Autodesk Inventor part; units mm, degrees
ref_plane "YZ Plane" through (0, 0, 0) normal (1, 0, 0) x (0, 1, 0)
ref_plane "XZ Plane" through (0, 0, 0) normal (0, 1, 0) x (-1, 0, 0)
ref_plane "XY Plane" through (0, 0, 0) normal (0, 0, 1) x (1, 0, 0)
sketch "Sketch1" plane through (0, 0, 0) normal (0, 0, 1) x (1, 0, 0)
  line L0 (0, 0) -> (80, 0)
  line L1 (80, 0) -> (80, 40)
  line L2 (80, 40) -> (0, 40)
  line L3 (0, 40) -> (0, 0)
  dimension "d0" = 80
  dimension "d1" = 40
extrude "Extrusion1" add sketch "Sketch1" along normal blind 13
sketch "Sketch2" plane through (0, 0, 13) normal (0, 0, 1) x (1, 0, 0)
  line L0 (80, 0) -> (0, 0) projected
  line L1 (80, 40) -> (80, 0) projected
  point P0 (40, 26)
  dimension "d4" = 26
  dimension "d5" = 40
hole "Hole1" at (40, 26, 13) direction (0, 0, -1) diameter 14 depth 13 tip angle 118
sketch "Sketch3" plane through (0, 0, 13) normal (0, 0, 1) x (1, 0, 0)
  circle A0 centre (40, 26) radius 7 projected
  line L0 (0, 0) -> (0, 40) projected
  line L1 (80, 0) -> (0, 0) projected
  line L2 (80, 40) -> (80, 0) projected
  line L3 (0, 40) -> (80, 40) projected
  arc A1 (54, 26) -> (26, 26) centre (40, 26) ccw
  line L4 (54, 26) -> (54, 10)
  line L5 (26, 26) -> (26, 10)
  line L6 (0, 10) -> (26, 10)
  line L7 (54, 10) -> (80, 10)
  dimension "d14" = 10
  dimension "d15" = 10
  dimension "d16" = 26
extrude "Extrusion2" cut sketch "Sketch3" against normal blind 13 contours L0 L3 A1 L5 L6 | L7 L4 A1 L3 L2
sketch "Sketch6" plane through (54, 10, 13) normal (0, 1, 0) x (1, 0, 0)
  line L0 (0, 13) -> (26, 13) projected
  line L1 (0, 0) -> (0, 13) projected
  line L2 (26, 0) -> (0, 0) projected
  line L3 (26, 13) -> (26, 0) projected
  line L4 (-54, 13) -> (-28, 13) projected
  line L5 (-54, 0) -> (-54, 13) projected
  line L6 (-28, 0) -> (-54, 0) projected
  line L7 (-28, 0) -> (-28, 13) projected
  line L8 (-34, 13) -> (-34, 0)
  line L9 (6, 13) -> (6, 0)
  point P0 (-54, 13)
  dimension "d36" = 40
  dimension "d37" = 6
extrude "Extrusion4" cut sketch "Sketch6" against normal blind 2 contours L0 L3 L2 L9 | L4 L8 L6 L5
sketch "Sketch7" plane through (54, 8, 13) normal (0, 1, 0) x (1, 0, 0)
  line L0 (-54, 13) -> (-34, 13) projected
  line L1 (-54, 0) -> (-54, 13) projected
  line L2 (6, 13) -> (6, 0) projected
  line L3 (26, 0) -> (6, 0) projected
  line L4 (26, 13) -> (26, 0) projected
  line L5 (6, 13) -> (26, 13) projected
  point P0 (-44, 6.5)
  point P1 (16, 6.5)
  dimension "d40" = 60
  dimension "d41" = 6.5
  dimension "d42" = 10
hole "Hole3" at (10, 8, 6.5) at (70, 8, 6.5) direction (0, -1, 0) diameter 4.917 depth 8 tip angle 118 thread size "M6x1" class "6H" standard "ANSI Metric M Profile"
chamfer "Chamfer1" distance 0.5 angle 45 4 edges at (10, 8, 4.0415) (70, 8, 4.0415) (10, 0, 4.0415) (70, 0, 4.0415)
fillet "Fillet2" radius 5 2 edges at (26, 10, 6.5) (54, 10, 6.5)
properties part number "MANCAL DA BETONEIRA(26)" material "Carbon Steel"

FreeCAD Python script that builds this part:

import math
import FreeCAD as App
import Part
import Sketcher
from FreeCAD import Vector
Q = App.Units.Quantity


def edges_at(feature, points):
    """Names of the edges that pass closest to the given points."""
    edges = feature.Shape.Edges
    near = lambda p: min(range(len(edges)), key=lambda i: edges[i].distToShape(Part.Vertex(*p))[0])
    return sorted({f"Edge{near(p) + 1}" for p in points})


def add_polygon(sketch, points):
    """Adds a closed chain of lines whose ends are joined by coincident constraints."""
    first, n = sketch.GeometryCount, len(points)
    for a, b in zip(points, points[1:] + points[:1]):
        sketch.addGeometry(Part.LineSegment(App.Vector(*a, 0), App.Vector(*b, 0)), False)
    for i in range(n):
        sketch.addConstraint(Sketcher.Constraint("Coincident", first + i, 2, first + (i + 1) % n, 1))

doc = App.newDocument("Part")
params = doc.addObject("Spreadsheet::Sheet", "Params")
for row, (alias, value) in enumerate([
    ("sketch1_width", "80 mm"),
    ("sketch1_height", "40 mm"),
    ("pad1_length", "13 mm"),
    ("sketch2_diameter", "14 mm"),
    ("hole_diameter", "14 mm"),
    ("hole_depth", "13 mm"),
    ("sketch3_width", "26 mm"),
    ("sketch3_radius", "14 mm"),
    ("pocket1_length", "13 mm"),
    ("sketch4_width", "20 mm"),
    ("sketch4_height", "13 mm"),
    ("pocket2_length", "2 mm"),
    ("hole2_diameter", "4.917 mm"),
    ("hole2_depth", "8 mm"),
    ("chamfer_size", "0.5 mm"),
    ("fillet_radius", "5 mm"),
], start=1):
    params.set(f"A{row}", alias)
    params.set(f"B{row}", "=" + value)
    params.setAlias(f"B{row}", alias)

body = doc.addObject("PartDesign::Body", "Body")

# Sketch on XY plane
sketch1 = doc.addObject("Sketcher::SketchObject", "Sketch")
body.addObject(sketch1)
sketch1.AttachmentSupport = (doc.XY_Plane, [""])
sketch1.MapMode = "FlatFace"
add_polygon(sketch1, [(0, 40), (0, 0), (80, 0), (80, 40)])  # lines 0-3
sketch1.addConstraint(Sketcher.Constraint("Vertical", 0))
sketch1.addConstraint(Sketcher.Constraint("Horizontal", 1))
sketch1.addConstraint(Sketcher.Constraint("Vertical", 2))
sketch1.addConstraint(Sketcher.Constraint("Horizontal", 3))
sketch1.addConstraint(Sketcher.Constraint("Coincident", 0, 2, -1, 1))
sketch1.addConstraint(Sketcher.Constraint("DistanceX", 1, 1, 1, 2, Q("80 mm")))
sketch1.addConstraint(Sketcher.Constraint("DistanceY", 0, 2, 0, 1, Q("40 mm")))
sketch1.setExpression("Constraints[9]", "Params.sketch1_width")
sketch1.setExpression("Constraints[10]", "Params.sketch1_height")
pad1 = doc.addObject("PartDesign::Pad", "Pad")
body.addObject(pad1)
pad1.Profile = sketch1
pad1.setExpression("Length", "Params.pad1_length")

# Sketch on XY plane
sketch2 = doc.addObject("Sketcher::SketchObject", "Sketch001")
body.addObject(sketch2)
sketch2.AttachmentSupport = (doc.XY_Plane, [""])
sketch2.MapMode = "FlatFace"
sketch2.AttachmentOffset = App.Placement(Vector(0, 0, 13), App.Rotation())
sketch2.addGeometry(Part.Circle(Vector(40, 26, 0), Vector(0, 0, 1), 7), False)
sketch2.addConstraint(Sketcher.Constraint("Diameter", 0, Q("14 mm")))
sketch2.addConstraint(Sketcher.Constraint("DistanceX", -1, 1, 0, 3, Q("40 mm")))
sketch2.addConstraint(Sketcher.Constraint("DistanceY", -1, 1, 0, 3, Q("26 mm")))
sketch2.setExpression("Constraints[0]", "Params.sketch2_diameter")
doc.recompute()
hole = doc.addObject("PartDesign::Hole", "Hole")
body.addObject(hole)
hole.Profile = sketch2
hole.ThreadType = "None"
hole.setExpression("Diameter", "Params.hole_diameter")
hole.DepthType = "Dimension"
hole.setExpression("Depth", "Params.hole_depth")
hole.DrillPoint = "Angled"
hole.DrillPointAngle = 118

# Sketch on XY plane
sketch3 = doc.addObject("Sketcher::SketchObject", "Sketch002")
body.addObject(sketch3)
sketch3.AttachmentSupport = (doc.XY_Plane, [""])
sketch3.MapMode = "FlatFace"
sketch3.AttachmentOffset = App.Placement(Vector(0, 0, 13), App.Rotation())
sketch3.addGeometry(Part.LineSegment(Vector(0, 40, 0), Vector(0, 10, 0)), False)
sketch3.addGeometry(Part.LineSegment(Vector(0, 10, 0), Vector(26, 10, 0)), False)
sketch3.addGeometry(Part.LineSegment(Vector(26, 10, 0), Vector(26, 26, 0)), False)
sketch3.addGeometry(Part.ArcOfCircle(Part.Circle(Vector(40, 26, 0), Vector(0, 0, 1), 14), math.radians(90), math.radians(180)), False)
sketch3.addGeometry(Part.LineSegment(Vector(40, 40, 0), Vector(0, 40, 0)), False)
sketch3.addGeometry(Part.LineSegment(Vector(54, 10, 0), Vector(80, 10, 0)), False)
sketch3.addGeometry(Part.LineSegment(Vector(80, 10, 0), Vector(80, 40, 0)), False)
sketch3.addGeometry(Part.LineSegment(Vector(80, 40, 0), Vector(40, 40, 0)), False)
sketch3.addGeometry(Part.ArcOfCircle(Part.Circle(Vector(40, 26, 0), Vector(0, 0, 1), 14), math.radians(0), math.radians(90)), False)
sketch3.addGeometry(Part.LineSegment(Vector(54, 26, 0), Vector(54, 10, 0)), False)
sketch3.addConstraint(Sketcher.Constraint("Coincident", 0, 2, 1, 1))
sketch3.addConstraint(Sketcher.Constraint("Coincident", 1, 2, 2, 1))
sketch3.addConstraint(Sketcher.Constraint("Tangent", 2, 2, 3, 2))
sketch3.addConstraint(Sketcher.Constraint("Tangent", 3, 1, 4, 1))
sketch3.addConstraint(Sketcher.Constraint("Coincident", 4, 2, 0, 1))
sketch3.addConstraint(Sketcher.Constraint("Coincident", 5, 2, 6, 1))
sketch3.addConstraint(Sketcher.Constraint("Coincident", 6, 2, 7, 1))
sketch3.addConstraint(Sketcher.Constraint("Tangent", 7, 2, 8, 2))
sketch3.addConstraint(Sketcher.Constraint("Tangent", 8, 1, 9, 1))
sketch3.addConstraint(Sketcher.Constraint("Coincident", 9, 2, 5, 1))
sketch3.addConstraint(Sketcher.Constraint("Vertical", 0))
sketch3.addConstraint(Sketcher.Constraint("Horizontal", 1))
sketch3.addConstraint(Sketcher.Constraint("Vertical", 2))
sketch3.addConstraint(Sketcher.Constraint("Horizontal", 4))
sketch3.addConstraint(Sketcher.Constraint("Horizontal", 5))
sketch3.addConstraint(Sketcher.Constraint("Vertical", 6))
sketch3.addConstraint(Sketcher.Constraint("Horizontal", 7))
sketch3.addConstraint(Sketcher.Constraint("Vertical", 9))
sketch3.addConstraint(Sketcher.Constraint("Coincident", 8, 3, 3, 3))
sketch3.addConstraint(Sketcher.Constraint("Equal", 3, 8))
sketch3.addConstraint(Sketcher.Constraint("PointOnObject", 0, 2, -2))
sketch3.addConstraint(Sketcher.Constraint("Horizontal", 1, 2, 5, 2))
sketch3.addConstraint(Sketcher.Constraint("Equal", 1, 5))
sketch3.addConstraint(Sketcher.Constraint("DistanceX", 1, 1, 1, 2, Q("26 mm")))
sketch3.addConstraint(Sketcher.Constraint("DistanceY", -1, 1, 3, 3, Q("26 mm")))
sketch3.addConstraint(Sketcher.Constraint("DistanceY", -1, 1, 0, 2, Q("10 mm")))
sketch3.addConstraint(Sketcher.Constraint("Radius", 3, Q("14 mm")))
sketch3.setExpression("Constraints[23]", "Params.sketch3_width")
sketch3.setExpression("Constraints[26]", "Params.sketch3_radius")
pocket1 = doc.addObject("PartDesign::Pocket", "Pocket")
body.addObject(pocket1)
pocket1.Profile = sketch3
pocket1.setExpression("Length", "Params.pocket1_length")

# Sketch on XZ plane
sketch4 = doc.addObject("Sketcher::SketchObject", "Sketch003")
body.addObject(sketch4)
sketch4.AttachmentSupport = (doc.XZ_Plane, [""])
sketch4.MapMode = "FlatFace"
sketch4.AttachmentOffset = App.Placement(Vector(0, 0, -10), App.Rotation())
add_polygon(sketch4, [(80, 0), (60, 0), (60, 13), (80, 13)])  # lines 0-3
add_polygon(sketch4, [(20, 0), (0, 0), (0, 13), (20, 13)])  # lines 4-7
sketch4.addConstraint(Sketcher.Constraint("Horizontal", 0))
sketch4.addConstraint(Sketcher.Constraint("Vertical", 1))
sketch4.addConstraint(Sketcher.Constraint("Horizontal", 2))
sketch4.addConstraint(Sketcher.Constraint("Vertical", 3))
sketch4.addConstraint(Sketcher.Constraint("Horizontal", 4))
sketch4.addConstraint(Sketcher.Constraint("Vertical", 5))
sketch4.addConstraint(Sketcher.Constraint("Horizontal", 6))
sketch4.addConstraint(Sketcher.Constraint("Vertical", 7))
sketch4.addConstraint(Sketcher.Constraint("Coincident", 4, 2, -1, 1))
sketch4.addConstraint(Sketcher.Constraint("PointOnObject", 0, 2, -1))
sketch4.addConstraint(Sketcher.Constraint("Horizontal", 2, 2, 5, 2))
sketch4.addConstraint(Sketcher.Constraint("Equal", 2, 4))
sketch4.addConstraint(Sketcher.Constraint("DistanceX", 6, 2, 1, 2, Q("40 mm")))
sketch4.addConstraint(Sketcher.Constraint("DistanceX", 0, 2, 0, 1, Q("20 mm")))
sketch4.addConstraint(Sketcher.Constraint("DistanceY", 1, 1, 1, 2, Q("13 mm")))
sketch4.setExpression("Constraints[21]", "Params.sketch4_width")
sketch4.setExpression("Constraints[22]", "Params.sketch4_height")
pocket2 = doc.addObject("PartDesign::Pocket", "Pocket001")
body.addObject(pocket2)
pocket2.Profile = sketch4
pocket2.setExpression("Length", "Params.pocket2_length")
pocket2.Reversed = True

# Sketch on XZ plane
sketch5 = doc.addObject("Sketcher::SketchObject", "Sketch004")
body.addObject(sketch5)
sketch5.AttachmentSupport = (doc.XZ_Plane, [""])
sketch5.MapMode = "FlatFace"
sketch5.AttachmentOffset = App.Placement(Vector(0, 0, -8), App.Rotation())
sketch5.addGeometry(Part.Circle(Vector(10, 6.5, 0), Vector(0, 0, 1), 2.5), False)
sketch5.addGeometry(Part.Circle(Vector(70, 6.5, 0), Vector(0, 0, 1), 2.5), False)
sketch5.addConstraint(Sketcher.Constraint("Equal", 0, 1))
sketch5.addConstraint(Sketcher.Constraint("Horizontal", 0, 3, 1, 3))
sketch5.addConstraint(Sketcher.Constraint("Diameter", 0, Q("4.917 mm")))
sketch5.addConstraint(Sketcher.Constraint("DistanceX", -1, 1, 0, 3, Q("10 mm")))
sketch5.addConstraint(Sketcher.Constraint("DistanceX", -1, 1, 1, 3, Q("70 mm")))
sketch5.addConstraint(Sketcher.Constraint("DistanceY", -1, 1, 0, 3, Q("6.5 mm")))
doc.recompute()
hole2 = doc.addObject("PartDesign::Hole", "Hole001")
body.addObject(hole2)
hole2.Profile = sketch5
hole2.ThreadType = "None"
hole2.setExpression("Diameter", "Params.hole2_diameter")
hole2.DepthType = "Dimension"
hole2.setExpression("Depth", "Params.hole2_depth")
hole2.DrillPoint = "Angled"
hole2.DrillPointAngle = 118
hole2.Reversed = True
doc.recompute()

chamfer = doc.addObject("PartDesign::Chamfer", "Chamfer")
body.addObject(chamfer)
chamfer.Base = (hole2, edges_at(hole2, [
    (10, 8, 4.042),
    (70, 8, 4.042),
    (10, 0, 4.042),
    (70, 0, 4.042),
]))
chamfer.setExpression("Size", "Params.chamfer_size")
doc.recompute()

fillet = doc.addObject("PartDesign::Fillet", "Fillet")
body.addObject(fillet)
fillet.Base = (chamfer, edges_at(chamfer, [(26, 10, 6.5), (54, 10, 6.5)]))
fillet.setExpression("Radius", "Params.fillet_radius")

doc.recompute()
